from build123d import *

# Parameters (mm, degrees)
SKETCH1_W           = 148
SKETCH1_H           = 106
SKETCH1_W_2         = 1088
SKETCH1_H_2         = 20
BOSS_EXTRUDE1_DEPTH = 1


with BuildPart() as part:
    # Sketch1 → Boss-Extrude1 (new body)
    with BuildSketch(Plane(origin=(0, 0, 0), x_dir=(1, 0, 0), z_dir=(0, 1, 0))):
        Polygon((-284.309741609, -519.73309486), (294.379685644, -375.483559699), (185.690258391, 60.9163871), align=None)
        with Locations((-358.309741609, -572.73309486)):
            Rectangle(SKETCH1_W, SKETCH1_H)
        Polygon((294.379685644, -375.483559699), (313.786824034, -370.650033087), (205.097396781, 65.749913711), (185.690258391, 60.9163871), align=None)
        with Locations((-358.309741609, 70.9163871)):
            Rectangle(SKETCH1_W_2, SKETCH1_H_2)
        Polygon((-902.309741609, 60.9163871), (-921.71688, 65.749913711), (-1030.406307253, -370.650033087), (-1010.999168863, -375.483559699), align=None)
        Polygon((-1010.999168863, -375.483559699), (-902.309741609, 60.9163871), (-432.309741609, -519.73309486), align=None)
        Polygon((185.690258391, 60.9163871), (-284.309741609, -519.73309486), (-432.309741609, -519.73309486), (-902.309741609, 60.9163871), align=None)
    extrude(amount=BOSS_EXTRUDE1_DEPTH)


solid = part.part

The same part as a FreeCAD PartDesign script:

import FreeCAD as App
import Part
import Sketcher

V = App.Vector
Q = App.Units.Quantity

doc = App.newDocument("Part")
params = doc.addObject("Spreadsheet::Sheet", "Params")
for row, (alias, value) in enumerate([
    ("sketch1_width", "1088 mm"),
    ("sketch1_width2", "148 mm"),
    ("sketch1_height", "20 mm"),
    ("sketch1_height2", "106 mm"),
    ("sketch1_length", "20 mm"),
    ("pad1_length", "1 mm"),
], start=1):
    params.set(f"A{row}", alias)
    params.set(f"B{row}", "=" + value)
    params.setAlias(f"B{row}", alias)

body = doc.addObject("PartDesign::Body", "Body")

# Sketch on XZ plane
sketch1 = doc.addObject("Sketcher::SketchObject", "Sketch")
body.addObject(sketch1)
sketch1.AttachmentSupport = (doc.XZ_Plane, [""])
sketch1.MapMode = "FlatFace"
sketch1.addGeometry(Part.LineSegment(V(-284, 520, 0), V(294, 375, 0)), False)
sketch1.addGeometry(Part.LineSegment(V(294, 375, 0), V(314, 371, 0)), False)
sketch1.addGeometry(Part.LineSegment(V(314, 371, 0), V(205, -66, 0)), False)
sketch1.addGeometry(Part.LineSegment(V(205, -66, 0), V(186, -61, 0)), False)
sketch1.addGeometry(Part.LineSegment(V(186, -61, 0), V(186, -81, 0)), False)
sketch1.addGeometry(Part.LineSegment(V(186, -81, 0), V(-902, -81, 0)), False)
sketch1.addGeometry(Part.LineSegment(V(-902, -81, 0), V(-902, -61, 0)), False)
sketch1.addGeometry(Part.LineSegment(V(-902, -61, 0), V(-922, -66, 0)), False)
sketch1.addGeometry(Part.LineSegment(V(-922, -66, 0), V(-1030, 371, 0)), False)
sketch1.addGeometry(Part.LineSegment(V(-1030, 371, 0), V(-1011, 375, 0)), False)
sketch1.addGeometry(Part.LineSegment(V(-1011, 375, 0), V(-432, 520, 0)), False)
sketch1.addGeometry(Part.LineSegment(V(-432, 520, 0), V(-432, 626, 0)), False)
sketch1.addGeometry(Part.LineSegment(V(-432, 626, 0), V(-284, 626, 0)), False)
sketch1.addGeometry(Part.LineSegment(V(-284, 626, 0), V(-284, 520, 0)), False)
sketch1.addConstraint(Sketcher.Constraint("Coincident", 0, 2, 1, 1))
sketch1.addConstraint(Sketcher.Constraint("Coincident", 1, 2, 2, 1))
sketch1.addConstraint(Sketcher.Constraint("Coincident", 2, 2, 3, 1))
sketch1.addConstraint(Sketcher.Constraint("Coincident", 3, 2, 4, 1))
sketch1.addConstraint(Sketcher.Constraint("Coincident", 4, 2, 5, 1))
sketch1.addConstraint(Sketcher.Constraint("Coincident", 5, 2, 6, 1))
sketch1.addConstraint(Sketcher.Constraint("Coincident", 6, 2, 7, 1))
sketch1.addConstraint(Sketcher.Constraint("Coincident", 7, 2, 8, 1))
sketch1.addConstraint(Sketcher.Constraint("Coincident", 8, 2, 9, 1))
sketch1.addConstraint(Sketcher.Constraint("Coincident", 9, 2, 10, 1))
sketch1.addConstraint(Sketcher.Constraint("Coincident", 10, 2, 11, 1))
sketch1.addConstraint(Sketcher.Constraint("Coincident", 11, 2, 12, 1))
sketch1.addConstraint(Sketcher.Constraint("Coincident", 12, 2, 13, 1))
sketch1.addConstraint(Sketcher.Constraint("Coincident", 13, 2, 0, 1))
sketch1.addConstraint(Sketcher.Constraint("Vertical", 4))
sketch1.addConstraint(Sketcher.Constraint("Horizontal", 5))
sketch1.addConstraint(Sketcher.Constraint("Vertical", 6))
sketch1.addConstraint(Sketcher.Constraint("Vertical", 11))
sketch1.addConstraint(Sketcher.Constraint("Horizontal", 12))
sketch1.addConstraint(Sketcher.Constraint("Vertical", 13))
sketch1.addConstraint(Sketcher.Constraint("Perpendicular", 1, 2))
sketch1.addConstraint(Sketcher.Constraint("Perpendicular", 2, 3))
sketch1.addConstraint(Sketcher.Constraint("Perpendicular", 7, 8))
sketch1.addConstraint(Sketcher.Constraint("Perpendicular", 8, 9))
sketch1.addConstraint(Sketcher.Constraint("Horizontal", 3, 2, 6, 2))
sketch1.addConstraint(Sketcher.Constraint("Horizontal", 2, 2, 7, 2))
sketch1.addConstraint(Sketcher.Constraint("Horizontal", 1, 2, 8, 2))
sketch1.addConstraint(Sketcher.Constraint("Horizontal", 0, 2, 9, 2))
sketch1.addConstraint(Sketcher.Constraint("Horizontal", 10, 2, 13, 2))
sketch1.addConstraint(Sketcher.Constraint("Equal", 1, 3))
sketch1.addConstraint(Sketcher.Constraint("Equal", 3, 7))
sketch1.addConstraint(Sketcher.Constraint("Equal", 0, 10))
sketch1.addConstraint(Sketcher.Constraint("DistanceX", 5, 2, 5, 1, Q("1088 mm")))
sketch1.addConstraint(Sketcher.Constraint("DistanceX", 12, 1, 12, 2, Q("148 mm")))
sketch1.addConstraint(Sketcher.Constraint("DistanceY", 4, 2, 4, 1, Q("20 mm")))
sketch1.addConstraint(Sketcher.Constraint("DistanceY", 11, 1, 11, 2, Q("106 mm")))
sketch1.addConstraint(Sketcher.Constraint("Distance", 1, Q("20 mm")))
sketch1.addConstraint(Sketcher.Constraint("Distance", 0, Q("596.397 mm")))
sketch1.addConstraint(Sketcher.Constraint("Distance", 2, Q("449.73137 mm")))
sketch1.addConstraint(Sketcher.Constraint("DistanceY", -1, 1, 0, 2, Q("375.48356 mm")))
sketch1.addConstraint(Sketcher.Constraint("DistanceX", -1, 1, 3, 2, Q("185.690258 mm")))
sketch1.addConstraint(Sketcher.Constraint("DistanceX", 9, 2, -1, 1, Q("1010.999169 mm")))
sketch1.setExpression("Constraints[32]", "Params.sketch1_width")
sketch1.setExpression("Constraints[33]", "Params.sketch1_width2")
sketch1.setExpression("Constraints[34]", "Params.sketch1_height")
sketch1.setExpression("Constraints[35]", "Params.sketch1_height2")
sketch1.setExpression("Constraints[36]", "Params.sketch1_length")
pad1 = doc.addObject("PartDesign::Pad", "Pad")
body.addObject(pad1)
pad1.Profile = sketch1
pad1.setExpression("Length", "Params.pad1_length")
pad1.Reversed = True

doc.recompute()
